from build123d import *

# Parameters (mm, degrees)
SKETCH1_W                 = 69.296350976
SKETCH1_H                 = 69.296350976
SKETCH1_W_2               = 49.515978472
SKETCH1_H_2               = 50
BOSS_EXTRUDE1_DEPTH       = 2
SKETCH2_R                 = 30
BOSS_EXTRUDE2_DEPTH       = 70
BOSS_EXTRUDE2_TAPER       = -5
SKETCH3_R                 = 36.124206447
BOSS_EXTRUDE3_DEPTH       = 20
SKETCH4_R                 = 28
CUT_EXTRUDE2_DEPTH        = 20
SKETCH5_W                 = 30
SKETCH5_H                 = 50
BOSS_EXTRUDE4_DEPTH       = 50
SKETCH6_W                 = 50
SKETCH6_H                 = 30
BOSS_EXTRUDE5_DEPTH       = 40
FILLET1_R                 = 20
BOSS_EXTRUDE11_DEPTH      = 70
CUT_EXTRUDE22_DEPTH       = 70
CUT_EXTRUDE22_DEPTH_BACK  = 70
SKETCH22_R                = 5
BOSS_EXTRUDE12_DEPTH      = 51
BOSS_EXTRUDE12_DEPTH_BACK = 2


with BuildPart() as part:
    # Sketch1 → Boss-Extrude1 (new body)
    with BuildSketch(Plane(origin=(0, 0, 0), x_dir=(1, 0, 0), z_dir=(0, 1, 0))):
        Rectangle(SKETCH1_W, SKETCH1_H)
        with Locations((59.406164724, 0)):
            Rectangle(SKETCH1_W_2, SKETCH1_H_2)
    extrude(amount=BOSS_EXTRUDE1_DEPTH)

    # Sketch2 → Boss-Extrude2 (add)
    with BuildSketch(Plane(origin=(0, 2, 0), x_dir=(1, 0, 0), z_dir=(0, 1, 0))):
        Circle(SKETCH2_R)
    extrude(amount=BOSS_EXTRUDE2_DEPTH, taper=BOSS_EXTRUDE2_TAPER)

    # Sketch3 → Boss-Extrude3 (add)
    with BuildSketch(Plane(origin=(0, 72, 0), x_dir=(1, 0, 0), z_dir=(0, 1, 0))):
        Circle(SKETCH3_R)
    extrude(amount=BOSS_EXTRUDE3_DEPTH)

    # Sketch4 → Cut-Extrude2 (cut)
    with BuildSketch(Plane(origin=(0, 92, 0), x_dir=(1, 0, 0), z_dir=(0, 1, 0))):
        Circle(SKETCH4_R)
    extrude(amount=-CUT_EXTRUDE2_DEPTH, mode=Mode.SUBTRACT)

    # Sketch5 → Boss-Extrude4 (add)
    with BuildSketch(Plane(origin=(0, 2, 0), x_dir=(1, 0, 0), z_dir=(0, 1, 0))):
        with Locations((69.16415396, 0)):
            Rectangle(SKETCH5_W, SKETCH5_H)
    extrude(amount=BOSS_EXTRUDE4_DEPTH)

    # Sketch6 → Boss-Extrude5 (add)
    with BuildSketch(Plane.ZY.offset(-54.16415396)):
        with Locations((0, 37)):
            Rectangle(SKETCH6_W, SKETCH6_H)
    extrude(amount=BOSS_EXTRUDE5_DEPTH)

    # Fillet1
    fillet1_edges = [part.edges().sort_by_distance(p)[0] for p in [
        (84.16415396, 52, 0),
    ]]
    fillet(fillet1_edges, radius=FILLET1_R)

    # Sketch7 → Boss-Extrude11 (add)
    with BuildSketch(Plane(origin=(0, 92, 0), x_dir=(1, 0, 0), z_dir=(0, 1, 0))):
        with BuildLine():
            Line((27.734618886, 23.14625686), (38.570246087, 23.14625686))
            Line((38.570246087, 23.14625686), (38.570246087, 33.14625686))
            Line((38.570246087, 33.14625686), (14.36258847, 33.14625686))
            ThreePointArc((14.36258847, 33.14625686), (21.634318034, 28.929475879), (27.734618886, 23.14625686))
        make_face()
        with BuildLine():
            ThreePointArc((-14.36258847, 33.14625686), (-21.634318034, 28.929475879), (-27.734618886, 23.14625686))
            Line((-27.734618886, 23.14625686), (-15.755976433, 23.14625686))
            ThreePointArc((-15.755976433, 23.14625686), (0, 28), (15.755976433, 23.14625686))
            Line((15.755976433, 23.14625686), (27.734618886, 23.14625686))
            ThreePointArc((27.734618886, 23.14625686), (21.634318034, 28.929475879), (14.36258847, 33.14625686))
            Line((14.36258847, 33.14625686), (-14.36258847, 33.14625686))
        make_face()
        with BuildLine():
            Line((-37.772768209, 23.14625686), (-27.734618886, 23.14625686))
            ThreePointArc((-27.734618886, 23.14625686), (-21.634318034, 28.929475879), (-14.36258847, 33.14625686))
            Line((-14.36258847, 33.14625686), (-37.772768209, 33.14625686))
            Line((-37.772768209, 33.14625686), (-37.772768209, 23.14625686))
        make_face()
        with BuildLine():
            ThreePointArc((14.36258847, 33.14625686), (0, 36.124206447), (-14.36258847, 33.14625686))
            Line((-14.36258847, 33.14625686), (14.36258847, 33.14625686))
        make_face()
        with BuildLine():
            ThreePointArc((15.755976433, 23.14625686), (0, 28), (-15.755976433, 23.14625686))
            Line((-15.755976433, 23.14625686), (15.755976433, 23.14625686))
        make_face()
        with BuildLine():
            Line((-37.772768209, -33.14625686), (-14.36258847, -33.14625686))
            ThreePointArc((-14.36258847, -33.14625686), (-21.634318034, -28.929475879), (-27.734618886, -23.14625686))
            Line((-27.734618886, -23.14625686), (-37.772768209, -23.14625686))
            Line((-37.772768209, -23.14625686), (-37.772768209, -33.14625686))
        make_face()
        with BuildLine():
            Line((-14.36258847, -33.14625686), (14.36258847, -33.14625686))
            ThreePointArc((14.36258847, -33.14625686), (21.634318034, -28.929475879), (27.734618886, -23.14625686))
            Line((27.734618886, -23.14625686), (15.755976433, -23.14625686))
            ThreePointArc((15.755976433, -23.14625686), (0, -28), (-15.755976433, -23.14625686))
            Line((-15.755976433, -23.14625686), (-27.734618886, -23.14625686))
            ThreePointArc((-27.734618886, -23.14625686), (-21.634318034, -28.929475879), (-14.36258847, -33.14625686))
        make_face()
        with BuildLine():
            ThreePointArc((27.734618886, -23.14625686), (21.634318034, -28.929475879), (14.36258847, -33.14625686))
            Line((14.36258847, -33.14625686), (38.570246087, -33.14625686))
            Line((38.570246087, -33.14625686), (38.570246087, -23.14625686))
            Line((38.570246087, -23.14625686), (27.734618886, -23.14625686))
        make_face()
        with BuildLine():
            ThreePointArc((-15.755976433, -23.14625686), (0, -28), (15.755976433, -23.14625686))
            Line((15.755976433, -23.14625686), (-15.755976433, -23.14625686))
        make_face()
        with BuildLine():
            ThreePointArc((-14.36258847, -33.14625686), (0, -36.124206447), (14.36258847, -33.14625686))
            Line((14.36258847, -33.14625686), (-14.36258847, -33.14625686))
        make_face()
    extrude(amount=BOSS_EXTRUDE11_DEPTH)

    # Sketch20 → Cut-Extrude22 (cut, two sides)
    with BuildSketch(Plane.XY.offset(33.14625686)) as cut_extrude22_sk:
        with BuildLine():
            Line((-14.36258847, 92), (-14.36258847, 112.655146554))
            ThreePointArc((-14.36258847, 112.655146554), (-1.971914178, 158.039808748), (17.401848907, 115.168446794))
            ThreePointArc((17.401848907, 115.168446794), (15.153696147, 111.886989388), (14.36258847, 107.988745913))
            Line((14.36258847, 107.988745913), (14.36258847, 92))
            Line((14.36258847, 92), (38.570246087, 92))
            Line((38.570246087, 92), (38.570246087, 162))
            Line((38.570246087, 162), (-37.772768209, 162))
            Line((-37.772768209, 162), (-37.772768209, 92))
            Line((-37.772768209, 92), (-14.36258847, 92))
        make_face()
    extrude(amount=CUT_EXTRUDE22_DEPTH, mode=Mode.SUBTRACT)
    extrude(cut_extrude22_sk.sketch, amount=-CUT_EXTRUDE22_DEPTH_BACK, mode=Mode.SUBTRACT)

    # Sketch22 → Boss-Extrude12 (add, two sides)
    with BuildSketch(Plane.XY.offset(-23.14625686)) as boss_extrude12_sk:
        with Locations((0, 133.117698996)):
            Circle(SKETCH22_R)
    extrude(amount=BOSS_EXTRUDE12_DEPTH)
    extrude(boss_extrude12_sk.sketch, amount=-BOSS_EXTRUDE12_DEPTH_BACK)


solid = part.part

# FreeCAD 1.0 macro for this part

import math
import FreeCAD as App
import Part
import Sketcher


def edges_at(feature, points):
    """Names of the edges that pass closest to the given points."""
    edges = feature.Shape.Edges
    near = lambda p: min(range(len(edges)), key=lambda i: edges[i].distToShape(Part.Vertex(*p))[0])
    return sorted({f"Edge{near(p) + 1}" for p in points})


def add_polygon(sketch, points):
    """Adds a closed chain of lines whose ends are joined by coincident constraints."""
    first, n = sketch.GeometryCount, len(points)
    for a, b in zip(points, points[1:] + points[:1]):
        sketch.addGeometry(Part.LineSegment(App.Vector(*a, 0), App.Vector(*b, 0)), False)
    for i in range(n):
        sketch.addConstraint(Sketcher.Constraint("Coincident", first + i, 2, first + (i + 1) % n, 1))

doc = App.newDocument("Part")
params = doc.addObject("Spreadsheet::Sheet", "Params")
for row, (alias, value) in enumerate([
    ("sketch1_height", "50 mm"),
    ("pad1_length", "2 mm"),
    ("sketch2_diameter", "60 mm"),
    ("pad2_length", "70 mm"),
    ("pad2_taper", "5 deg"),
    ("pad3_length", "20 mm"),
    ("sketch4_diameter", "56 mm"),
    ("pocket1_length", "20 mm"),
    ("sketch5_width", "30 mm"),
    ("sketch5_height", "50 mm"),
    ("pad4_length", "50 mm"),
    ("sketch6_width", "30 mm"),
    ("sketch6_height", "50 mm"),
    ("pad5_length", "40 mm"),
    ("fillet_radius", "20 mm"),
    ("sketch7_height", "10 mm"),
    ("pad6_length", "70 mm"),
    ("sketch8_radius", "25 mm"),
    ("sketch8_radius2", "10 mm"),
    ("sketch8_height", "70 mm"),
    ("sketch9_diameter", "10 mm"),
    ("pad7_length", "51 mm"),
    ("pad7_length2", "2 mm"),
], start=1):
    params.set(f"A{row}", alias)
    params.set(f"B{row}", "=" + value)
    params.setAlias(f"B{row}", alias)

body = doc.addObject("PartDesign::Body", "Body")

sketch1 = doc.addObject("Sketcher::SketchObject", "Sketch")
body.addObject(sketch1)
sketch1.AttachmentSupport = (doc.XZ_Plane, [""])
sketch1.MapMode = "FlatFace"
add_polygon(sketch1, [(-34.648175, -34.648175), (-34.648175, 34.648175), (34.648175, 34.648175), (34.648175, 25), (84.164154, 25), (84.164154, -25), (34.648175, -25), (34.648175, -34.648175)])
sketch1.addConstraint([
    Sketcher.Constraint("Vertical", 0),
    Sketcher.Constraint("Horizontal", 1),
    Sketcher.Constraint("Vertical", 2),
    Sketcher.Constraint("Horizontal", 3),
    Sketcher.Constraint("Vertical", 4),
    Sketcher.Constraint("Horizontal", 5),
    Sketcher.Constraint("Vertical", 6),
    Sketcher.Constraint("Horizontal", 7),
    Sketcher.Constraint("Symmetric", 0, 2, 6, 2, -1, 1),
    Sketcher.Constraint("Symmetric", 2, 2, 5, 2, -1),
    Sketcher.Constraint("Equal", 7, 0),
    Sketcher.Constraint("DistanceY", 4, 2, 4, 1, 50.0),
    Sketcher.Constraint("DistanceX", 1, 1, 1, 2, 69.296351),
    Sketcher.Constraint("DistanceX", 3, 1, 3, 2, 49.515978),
])
sketch1.setExpression("Constraints[19]", "Params.sketch1_height")
pad1 = doc.addObject("PartDesign::Pad", "Pad")
body.addObject(pad1)
pad1.Profile = sketch1
pad1.setExpression("Length", "Params.pad1_length")
pad1.Reversed = True

sketch2 = doc.addObject("Sketcher::SketchObject", "Sketch001")
body.addObject(sketch2)
sketch2.AttachmentSupport = (doc.XZ_Plane, [""])
sketch2.MapMode = "FlatFace"
sketch2.AttachmentOffset = App.Placement(App.Vector(0, 0, -2), App.Rotation())
sketch2.addGeometry(Part.Circle(App.Vector(0, 0, 0), App.Vector(0, 0, 1), 30), False)
sketch2.addConstraint([
    Sketcher.Constraint("Coincident", 0, 3, -1, 1),
    Sketcher.Constraint("Diameter", 0, 60.0),
])
sketch2.setExpression("Constraints[1]", "Params.sketch2_diameter")
pad2 = doc.addObject("PartDesign::Pad", "Pad001")
body.addObject(pad2)
pad2.Profile = sketch2
pad2.setExpression("Length", "Params.pad2_length")
pad2.Reversed = True
pad2.setExpression("TaperAngle", "Params.pad2_taper")

sketch3 = doc.addObject("Sketcher::SketchObject", "Sketch002")
body.addObject(sketch3)
sketch3.AttachmentSupport = (doc.XZ_Plane, [""])
sketch3.MapMode = "FlatFace"
sketch3.AttachmentOffset = App.Placement(App.Vector(0, 0, -72), App.Rotation())
sketch3.addGeometry(Part.Circle(App.Vector(0, 0, 0), App.Vector(0, 0, 1), 36.124206), False)
sketch3.addConstraint([
    Sketcher.Constraint("Coincident", 0, 3, -1, 1),
    Sketcher.Constraint("Diameter", 0, 72.248413),
])
pad3 = doc.addObject("PartDesign::Pad", "Pad002")
body.addObject(pad3)
pad3.Profile = sketch3
pad3.setExpression("Length", "Params.pad3_length")
pad3.Reversed = True

sketch4 = doc.addObject("Sketcher::SketchObject", "Sketch003")
body.addObject(sketch4)
sketch4.AttachmentSupport = (doc.XZ_Plane, [""])
sketch4.MapMode = "FlatFace"
sketch4.AttachmentOffset = App.Placement(App.Vector(0, 0, -92), App.Rotation())
sketch4.addGeometry(Part.Circle(App.Vector(0, 0, 0), App.Vector(0, 0, 1), 28), False)
sketch4.addConstraint([
    Sketcher.Constraint("Coincident", 0, 3, -1, 1),
    Sketcher.Constraint("Diameter", 0, 56.0),
])
sketch4.setExpression("Constraints[1]", "Params.sketch4_diameter")
pocket1 = doc.addObject("PartDesign::Pocket", "Pocket")
body.addObject(pocket1)
pocket1.Profile = sketch4
pocket1.setExpression("Length", "Params.pocket1_length")
pocket1.Reversed = True

sketch5 = doc.addObject("Sketcher::SketchObject", "Sketch004")
body.addObject(sketch5)
sketch5.AttachmentSupport = (doc.XZ_Plane, [""])
sketch5.MapMode = "FlatFace"
sketch5.AttachmentOffset = App.Placement(App.Vector(0, 0, -2), App.Rotation())
add_polygon(sketch5, [(54.164154, -25), (54.164154, 25), (84.164154, 25), (84.164154, -25)])
sketch5.addConstraint([
    Sketcher.Constraint("Vertical", 0),
    Sketcher.Constraint("Horizontal", 1),
    Sketcher.Constraint("Vertical", 2),
    Sketcher.Constraint("Horizontal", 3),
    Sketcher.Constraint("DistanceX", 1, 1, 1, 2, 30.0),
    Sketcher.Constraint("DistanceY", 0, 1, 0, 2, 50.0),
    Sketcher.Constraint("DistanceY", -1, 1, 0, 2, 25.0),
    Sketcher.Constraint("DistanceX", -1, 1, 0, 2, 54.164154),
])
sketch5.setExpression("Constraints[8]", "Params.sketch5_width")
sketch5.setExpression("Constraints[9]", "Params.sketch5_height")
pad4 = doc.addObject("PartDesign::Pad", "Pad003")
body.addObject(pad4)
pad4.Profile = sketch5
pad4.setExpression("Length", "Params.pad4_length")
pad4.Reversed = True

sketch6 = doc.addObject("Sketcher::SketchObject", "Sketch005")
body.addObject(sketch6)
sketch6.AttachmentSupport = (doc.YZ_Plane, [""])
sketch6.MapMode = "FlatFace"
sketch6.AttachmentOffset = App.Placement(App.Vector(0, 0, 54.164154), App.Rotation())
add_polygon(sketch6, [(52, -25), (22, -25), (22, 25), (52, 25)])
sketch6.addConstraint([
    Sketcher.Constraint("Horizontal", 0),
    Sketcher.Constraint("Vertical", 1),
    Sketcher.Constraint("Horizontal", 2),
    Sketcher.Constraint("Vertical", 3),
    Sketcher.Constraint("DistanceX", 0, 2, 0, 1, 30.0),
    Sketcher.Constraint("DistanceY", 1, 1, 1, 2, 50.0),
    Sketcher.Constraint("DistanceX", -1, 1, 0, 2, 22.0),
    Sketcher.Constraint("DistanceY", 0, 2, -1, 1, 25.0),
])
sketch6.setExpression("Constraints[8]", "Params.sketch6_width")
sketch6.setExpression("Constraints[9]", "Params.sketch6_height")
pad5 = doc.addObject("PartDesign::Pad", "Pad004")
body.addObject(pad5)
pad5.Profile = sketch6
pad5.setExpression("Length", "Params.pad5_length")
pad5.Reversed = True
doc.recompute()

fillet = doc.addObject("PartDesign::Fillet", "Fillet")
body.addObject(fillet)
fillet.Base = (pad5, edges_at(pad5, [(84.164, 52, 0)]))
fillet.setExpression("Radius", "Params.fillet_radius")

sketch7 = doc.addObject("Sketcher::SketchObject", "Sketch006")
body.addObject(sketch7)
sketch7.AttachmentSupport = (doc.XZ_Plane, [""])
sketch7.MapMode = "FlatFace"
sketch7.AttachmentOffset = App.Placement(App.Vector(0, 0, -92), App.Rotation())
sketch7.addGeometry([
    Part.LineSegment(App.Vector(38.570246, -23.146257, 0), App.Vector(38.570246, -33.146257, 0)),
    Part.LineSegment(App.Vector(38.570246, -33.146257, 0), App.Vector(14.362588, -33.146257, 0)),
    Part.ArcOfCircle(Part.Circle(App.Vector(0, 0, 0), App.Vector(0, 0, 1), 36.124206), math.radians(-113.427544), math.radians(-66.572456)),
    Part.LineSegment(App.Vector(-14.362588, -33.146257, 0), App.Vector(-37.772768, -33.146257, 0)),
    Part.LineSegment(App.Vector(-37.772768, -33.146257, 0), App.Vector(-37.772768, -23.146257, 0)),
    Part.LineSegment(App.Vector(-37.772768, -23.146257, 0), App.Vector(38.570246, -23.146257, 0)),
    Part.LineSegment(App.Vector(-37.772768, 33.146257, 0), App.Vector(-14.362588, 33.146257, 0)),
    Part.ArcOfCircle(Part.Circle(App.Vector(0, 0, 0), App.Vector(0, 0, 1), 36.124206), math.radians(66.572456), math.radians(113.427544)),
    Part.LineSegment(App.Vector(14.362588, 33.146257, 0), App.Vector(38.570246, 33.146257, 0)),
    Part.LineSegment(App.Vector(38.570246, 33.146257, 0), App.Vector(38.570246, 23.146257, 0)),
    Part.LineSegment(App.Vector(38.570246, 23.146257, 0), App.Vector(-37.772768, 23.146257, 0)),
    Part.LineSegment(App.Vector(-37.772768, 23.146257, 0), App.Vector(-37.772768, 33.146257, 0)),
], False)
sketch7.addConstraint([
    Sketcher.Constraint("Coincident", 0, 2, 1, 1),
    Sketcher.Constraint("Coincident", 1, 2, 2, 2),
    Sketcher.Constraint("Coincident", 2, 1, 3, 1),
    Sketcher.Constraint("Coincident", 3, 2, 4, 1),
    Sketcher.Constraint("Coincident", 4, 2, 5, 1),
    Sketcher.Constraint("Coincident", 5, 2, 0, 1),
    Sketcher.Constraint("Coincident", 6, 2, 7, 2),
    Sketcher.Constraint("Coincident", 7, 1, 8, 1),
    Sketcher.Constraint("Coincident", 8, 2, 9, 1),
    Sketcher.Constraint("Coincident", 9, 2, 10, 1),
    Sketcher.Constraint("Coincident", 10, 2, 11, 1),
    Sketcher.Constraint("Coincident", 11, 2, 6, 1),
    Sketcher.Constraint("Vertical", 0),
    Sketcher.Constraint("Horizontal", 1),
    Sketcher.Constraint("Horizontal", 3),
    Sketcher.Constraint("Vertical", 4),
    Sketcher.Constraint("Horizontal", 5),
    Sketcher.Constraint("Horizontal", 6),
    Sketcher.Constraint("Horizontal", 8),
    Sketcher.Constraint("Vertical", 9),
    Sketcher.Constraint("Horizontal", 10),
    Sketcher.Constraint("Vertical", 11),
    Sketcher.Constraint("Coincident", 2, 3, -1, 1),
    Sketcher.Constraint("Coincident", 7, 3, -1, 1),
    Sketcher.Constraint("Equal", 2, 7),
    Sketcher.Constraint("Symmetric", 0, 2, 8, 2, -1),
    Sketcher.Constraint("Symmetric", 4, 2, 10, 2, -1),
    Sketcher.Constraint("Horizontal", 1, 2, 2, 1),
    Sketcher.Constraint("Horizontal", 6, 2, 7, 1),
    Sketcher.Constraint("DistanceY", 0, 2, 0, 1, 10.0),
    Sketcher.Constraint("Radius", 2, 36.124206),
    Sketcher.Constraint("DistanceX", 3, 2, 3, 1, 23.41018),
    Sketcher.Constraint("DistanceX", 1, 2, 1, 1, 24.207658),
    Sketcher.Constraint("DistanceX", 5, 1, 5, 2, 76.343014),
])
sketch7.setExpression("Constraints[29]", "Params.sketch7_height")
pad6 = doc.addObject("PartDesign::Pad", "Pad005")
body.addObject(pad6)
pad6.Profile = sketch7
pad6.setExpression("Length", "Params.pad6_length")
pad6.Reversed = True

sketch8 = doc.addObject("Sketcher::SketchObject", "Sketch007")
body.addObject(sketch8)
sketch8.AttachmentSupport = (doc.XY_Plane, [""])
sketch8.MapMode = "FlatFace"
sketch8.AttachmentOffset = App.Placement(App.Vector(0, 0, 33.146257), App.Rotation())
sketch8.addGeometry([
    Part.LineSegment(App.Vector(-14.362588, 92, 0), App.Vector(-14.362588, 112.655147, 0)),
    Part.ArcOfCircle(Part.Circle(App.Vector(0, 133.117699, 0), App.Vector(0, 0, 1), 25), math.radians(-45.88714), math.radians(234.935128)),
    Part.ArcOfCircle(Part.Circle(App.Vector(24.362588, 107.988746, 0), App.Vector(0, 0, 1), 10), math.radians(134.11286), math.radians(180)),
    Part.LineSegment(App.Vector(14.362588, 107.988746, 0), App.Vector(14.362588, 92, 0)),
    Part.LineSegment(App.Vector(14.362588, 92, 0), App.Vector(38.570246, 92, 0)),
    Part.LineSegment(App.Vector(38.570246, 92, 0), App.Vector(38.570246, 162, 0)),
    Part.LineSegment(App.Vector(38.570246, 162, 0), App.Vector(-37.772768, 162, 0)),
    Part.LineSegment(App.Vector(-37.772768, 162, 0), App.Vector(-37.772768, 92, 0)),
    Part.LineSegment(App.Vector(-37.772768, 92, 0), App.Vector(-14.362588, 92, 0)),
], False)
sketch8.addConstraint([
    Sketcher.Constraint("Coincident", 0, 2, 1, 2),
    Sketcher.Constraint("Tangent", 1, 1, 2, 1),
    Sketcher.Constraint("Tangent", 2, 2, 3, 1),
    Sketcher.Constraint("Coincident", 3, 2, 4, 1),
    Sketcher.Constraint("Coincident", 4, 2, 5, 1),
    Sketcher.Constraint("Coincident", 5, 2, 6, 1),
    Sketcher.Constraint("Coincident", 6, 2, 7, 1),
    Sketcher.Constraint("Coincident", 7, 2, 8, 1),
    Sketcher.Constraint("Coincident", 8, 2, 0, 1),
    Sketcher.Constraint("Vertical", 0),
    Sketcher.Constraint("Vertical", 3),
    Sketcher.Constraint("Horizontal", 4),
    Sketcher.Constraint("Vertical", 5),
    Sketcher.Constraint("Horizontal", 6),
    Sketcher.Constraint("Vertical", 7),
    Sketcher.Constraint("Horizontal", 8),
    Sketcher.Constraint("Symmetric", 3, 2, 8, 2, -2),
    Sketcher.Constraint("PointOnObject", 1, 3, -2),
    Sketcher.Constraint("Radius", 1, 25.0),
    Sketcher.Constraint("Radius", 2, 10.0),
    Sketcher.Constraint("DistanceY", 5, 1, 5, 2, 70.0),
    Sketcher.Constraint("DistanceY", -1, 1, 3, 2, 92.0),
    Sketcher.Constraint("DistanceX", 8, 1, 8, 2, 23.41018),
    Sketcher.Constraint("DistanceY", -1, 1, 1, 3, 133.117699),
    Sketcher.Constraint("DistanceY", 2, 3, 0, 2, 4.666401),
    Sketcher.Constraint("DistanceX", 4, 1, 4, 2, 24.207658),
])
sketch8.setExpression("Constraints[18]", "Params.sketch8_radius")
sketch8.setExpression("Constraints[19]", "Params.sketch8_radius2")
sketch8.setExpression("Constraints[20]", "Params.sketch8_height")
pocket2 = doc.addObject("PartDesign::Pocket", "Pocket001")
body.addObject(pocket2)
pocket2.Profile = sketch8
pocket2.Type = "ThroughAll"
pocket2.Midplane = True

sketch9 = doc.addObject("Sketcher::SketchObject", "Sketch008")
body.addObject(sketch9)
sketch9.AttachmentSupport = (doc.XY_Plane, [""])
sketch9.MapMode = "FlatFace"
sketch9.AttachmentOffset = App.Placement(App.Vector(0, 0, -23.146257), App.Rotation())
sketch9.addGeometry(Part.Circle(App.Vector(0, 133.117699, 0), App.Vector(0, 0, 1), 5), False)
sketch9.addConstraint([
    Sketcher.Constraint("PointOnObject", 0, 3, -2),
    Sketcher.Constraint("Diameter", 0, 10.0),
    Sketcher.Constraint("DistanceY", -1, 1, 0, 3, 133.117699),
])
sketch9.setExpression("Constraints[1]", "Params.sketch9_diameter")
pad7 = doc.addObject("PartDesign::Pad", "Pad006")
body.addObject(pad7)
pad7.Profile = sketch9
pad7.Type = "TwoLengths"
pad7.setExpression("Length", "Params.pad7_length")
pad7.setExpression("Length2", "Params.pad7_length2")

doc.recompute()
